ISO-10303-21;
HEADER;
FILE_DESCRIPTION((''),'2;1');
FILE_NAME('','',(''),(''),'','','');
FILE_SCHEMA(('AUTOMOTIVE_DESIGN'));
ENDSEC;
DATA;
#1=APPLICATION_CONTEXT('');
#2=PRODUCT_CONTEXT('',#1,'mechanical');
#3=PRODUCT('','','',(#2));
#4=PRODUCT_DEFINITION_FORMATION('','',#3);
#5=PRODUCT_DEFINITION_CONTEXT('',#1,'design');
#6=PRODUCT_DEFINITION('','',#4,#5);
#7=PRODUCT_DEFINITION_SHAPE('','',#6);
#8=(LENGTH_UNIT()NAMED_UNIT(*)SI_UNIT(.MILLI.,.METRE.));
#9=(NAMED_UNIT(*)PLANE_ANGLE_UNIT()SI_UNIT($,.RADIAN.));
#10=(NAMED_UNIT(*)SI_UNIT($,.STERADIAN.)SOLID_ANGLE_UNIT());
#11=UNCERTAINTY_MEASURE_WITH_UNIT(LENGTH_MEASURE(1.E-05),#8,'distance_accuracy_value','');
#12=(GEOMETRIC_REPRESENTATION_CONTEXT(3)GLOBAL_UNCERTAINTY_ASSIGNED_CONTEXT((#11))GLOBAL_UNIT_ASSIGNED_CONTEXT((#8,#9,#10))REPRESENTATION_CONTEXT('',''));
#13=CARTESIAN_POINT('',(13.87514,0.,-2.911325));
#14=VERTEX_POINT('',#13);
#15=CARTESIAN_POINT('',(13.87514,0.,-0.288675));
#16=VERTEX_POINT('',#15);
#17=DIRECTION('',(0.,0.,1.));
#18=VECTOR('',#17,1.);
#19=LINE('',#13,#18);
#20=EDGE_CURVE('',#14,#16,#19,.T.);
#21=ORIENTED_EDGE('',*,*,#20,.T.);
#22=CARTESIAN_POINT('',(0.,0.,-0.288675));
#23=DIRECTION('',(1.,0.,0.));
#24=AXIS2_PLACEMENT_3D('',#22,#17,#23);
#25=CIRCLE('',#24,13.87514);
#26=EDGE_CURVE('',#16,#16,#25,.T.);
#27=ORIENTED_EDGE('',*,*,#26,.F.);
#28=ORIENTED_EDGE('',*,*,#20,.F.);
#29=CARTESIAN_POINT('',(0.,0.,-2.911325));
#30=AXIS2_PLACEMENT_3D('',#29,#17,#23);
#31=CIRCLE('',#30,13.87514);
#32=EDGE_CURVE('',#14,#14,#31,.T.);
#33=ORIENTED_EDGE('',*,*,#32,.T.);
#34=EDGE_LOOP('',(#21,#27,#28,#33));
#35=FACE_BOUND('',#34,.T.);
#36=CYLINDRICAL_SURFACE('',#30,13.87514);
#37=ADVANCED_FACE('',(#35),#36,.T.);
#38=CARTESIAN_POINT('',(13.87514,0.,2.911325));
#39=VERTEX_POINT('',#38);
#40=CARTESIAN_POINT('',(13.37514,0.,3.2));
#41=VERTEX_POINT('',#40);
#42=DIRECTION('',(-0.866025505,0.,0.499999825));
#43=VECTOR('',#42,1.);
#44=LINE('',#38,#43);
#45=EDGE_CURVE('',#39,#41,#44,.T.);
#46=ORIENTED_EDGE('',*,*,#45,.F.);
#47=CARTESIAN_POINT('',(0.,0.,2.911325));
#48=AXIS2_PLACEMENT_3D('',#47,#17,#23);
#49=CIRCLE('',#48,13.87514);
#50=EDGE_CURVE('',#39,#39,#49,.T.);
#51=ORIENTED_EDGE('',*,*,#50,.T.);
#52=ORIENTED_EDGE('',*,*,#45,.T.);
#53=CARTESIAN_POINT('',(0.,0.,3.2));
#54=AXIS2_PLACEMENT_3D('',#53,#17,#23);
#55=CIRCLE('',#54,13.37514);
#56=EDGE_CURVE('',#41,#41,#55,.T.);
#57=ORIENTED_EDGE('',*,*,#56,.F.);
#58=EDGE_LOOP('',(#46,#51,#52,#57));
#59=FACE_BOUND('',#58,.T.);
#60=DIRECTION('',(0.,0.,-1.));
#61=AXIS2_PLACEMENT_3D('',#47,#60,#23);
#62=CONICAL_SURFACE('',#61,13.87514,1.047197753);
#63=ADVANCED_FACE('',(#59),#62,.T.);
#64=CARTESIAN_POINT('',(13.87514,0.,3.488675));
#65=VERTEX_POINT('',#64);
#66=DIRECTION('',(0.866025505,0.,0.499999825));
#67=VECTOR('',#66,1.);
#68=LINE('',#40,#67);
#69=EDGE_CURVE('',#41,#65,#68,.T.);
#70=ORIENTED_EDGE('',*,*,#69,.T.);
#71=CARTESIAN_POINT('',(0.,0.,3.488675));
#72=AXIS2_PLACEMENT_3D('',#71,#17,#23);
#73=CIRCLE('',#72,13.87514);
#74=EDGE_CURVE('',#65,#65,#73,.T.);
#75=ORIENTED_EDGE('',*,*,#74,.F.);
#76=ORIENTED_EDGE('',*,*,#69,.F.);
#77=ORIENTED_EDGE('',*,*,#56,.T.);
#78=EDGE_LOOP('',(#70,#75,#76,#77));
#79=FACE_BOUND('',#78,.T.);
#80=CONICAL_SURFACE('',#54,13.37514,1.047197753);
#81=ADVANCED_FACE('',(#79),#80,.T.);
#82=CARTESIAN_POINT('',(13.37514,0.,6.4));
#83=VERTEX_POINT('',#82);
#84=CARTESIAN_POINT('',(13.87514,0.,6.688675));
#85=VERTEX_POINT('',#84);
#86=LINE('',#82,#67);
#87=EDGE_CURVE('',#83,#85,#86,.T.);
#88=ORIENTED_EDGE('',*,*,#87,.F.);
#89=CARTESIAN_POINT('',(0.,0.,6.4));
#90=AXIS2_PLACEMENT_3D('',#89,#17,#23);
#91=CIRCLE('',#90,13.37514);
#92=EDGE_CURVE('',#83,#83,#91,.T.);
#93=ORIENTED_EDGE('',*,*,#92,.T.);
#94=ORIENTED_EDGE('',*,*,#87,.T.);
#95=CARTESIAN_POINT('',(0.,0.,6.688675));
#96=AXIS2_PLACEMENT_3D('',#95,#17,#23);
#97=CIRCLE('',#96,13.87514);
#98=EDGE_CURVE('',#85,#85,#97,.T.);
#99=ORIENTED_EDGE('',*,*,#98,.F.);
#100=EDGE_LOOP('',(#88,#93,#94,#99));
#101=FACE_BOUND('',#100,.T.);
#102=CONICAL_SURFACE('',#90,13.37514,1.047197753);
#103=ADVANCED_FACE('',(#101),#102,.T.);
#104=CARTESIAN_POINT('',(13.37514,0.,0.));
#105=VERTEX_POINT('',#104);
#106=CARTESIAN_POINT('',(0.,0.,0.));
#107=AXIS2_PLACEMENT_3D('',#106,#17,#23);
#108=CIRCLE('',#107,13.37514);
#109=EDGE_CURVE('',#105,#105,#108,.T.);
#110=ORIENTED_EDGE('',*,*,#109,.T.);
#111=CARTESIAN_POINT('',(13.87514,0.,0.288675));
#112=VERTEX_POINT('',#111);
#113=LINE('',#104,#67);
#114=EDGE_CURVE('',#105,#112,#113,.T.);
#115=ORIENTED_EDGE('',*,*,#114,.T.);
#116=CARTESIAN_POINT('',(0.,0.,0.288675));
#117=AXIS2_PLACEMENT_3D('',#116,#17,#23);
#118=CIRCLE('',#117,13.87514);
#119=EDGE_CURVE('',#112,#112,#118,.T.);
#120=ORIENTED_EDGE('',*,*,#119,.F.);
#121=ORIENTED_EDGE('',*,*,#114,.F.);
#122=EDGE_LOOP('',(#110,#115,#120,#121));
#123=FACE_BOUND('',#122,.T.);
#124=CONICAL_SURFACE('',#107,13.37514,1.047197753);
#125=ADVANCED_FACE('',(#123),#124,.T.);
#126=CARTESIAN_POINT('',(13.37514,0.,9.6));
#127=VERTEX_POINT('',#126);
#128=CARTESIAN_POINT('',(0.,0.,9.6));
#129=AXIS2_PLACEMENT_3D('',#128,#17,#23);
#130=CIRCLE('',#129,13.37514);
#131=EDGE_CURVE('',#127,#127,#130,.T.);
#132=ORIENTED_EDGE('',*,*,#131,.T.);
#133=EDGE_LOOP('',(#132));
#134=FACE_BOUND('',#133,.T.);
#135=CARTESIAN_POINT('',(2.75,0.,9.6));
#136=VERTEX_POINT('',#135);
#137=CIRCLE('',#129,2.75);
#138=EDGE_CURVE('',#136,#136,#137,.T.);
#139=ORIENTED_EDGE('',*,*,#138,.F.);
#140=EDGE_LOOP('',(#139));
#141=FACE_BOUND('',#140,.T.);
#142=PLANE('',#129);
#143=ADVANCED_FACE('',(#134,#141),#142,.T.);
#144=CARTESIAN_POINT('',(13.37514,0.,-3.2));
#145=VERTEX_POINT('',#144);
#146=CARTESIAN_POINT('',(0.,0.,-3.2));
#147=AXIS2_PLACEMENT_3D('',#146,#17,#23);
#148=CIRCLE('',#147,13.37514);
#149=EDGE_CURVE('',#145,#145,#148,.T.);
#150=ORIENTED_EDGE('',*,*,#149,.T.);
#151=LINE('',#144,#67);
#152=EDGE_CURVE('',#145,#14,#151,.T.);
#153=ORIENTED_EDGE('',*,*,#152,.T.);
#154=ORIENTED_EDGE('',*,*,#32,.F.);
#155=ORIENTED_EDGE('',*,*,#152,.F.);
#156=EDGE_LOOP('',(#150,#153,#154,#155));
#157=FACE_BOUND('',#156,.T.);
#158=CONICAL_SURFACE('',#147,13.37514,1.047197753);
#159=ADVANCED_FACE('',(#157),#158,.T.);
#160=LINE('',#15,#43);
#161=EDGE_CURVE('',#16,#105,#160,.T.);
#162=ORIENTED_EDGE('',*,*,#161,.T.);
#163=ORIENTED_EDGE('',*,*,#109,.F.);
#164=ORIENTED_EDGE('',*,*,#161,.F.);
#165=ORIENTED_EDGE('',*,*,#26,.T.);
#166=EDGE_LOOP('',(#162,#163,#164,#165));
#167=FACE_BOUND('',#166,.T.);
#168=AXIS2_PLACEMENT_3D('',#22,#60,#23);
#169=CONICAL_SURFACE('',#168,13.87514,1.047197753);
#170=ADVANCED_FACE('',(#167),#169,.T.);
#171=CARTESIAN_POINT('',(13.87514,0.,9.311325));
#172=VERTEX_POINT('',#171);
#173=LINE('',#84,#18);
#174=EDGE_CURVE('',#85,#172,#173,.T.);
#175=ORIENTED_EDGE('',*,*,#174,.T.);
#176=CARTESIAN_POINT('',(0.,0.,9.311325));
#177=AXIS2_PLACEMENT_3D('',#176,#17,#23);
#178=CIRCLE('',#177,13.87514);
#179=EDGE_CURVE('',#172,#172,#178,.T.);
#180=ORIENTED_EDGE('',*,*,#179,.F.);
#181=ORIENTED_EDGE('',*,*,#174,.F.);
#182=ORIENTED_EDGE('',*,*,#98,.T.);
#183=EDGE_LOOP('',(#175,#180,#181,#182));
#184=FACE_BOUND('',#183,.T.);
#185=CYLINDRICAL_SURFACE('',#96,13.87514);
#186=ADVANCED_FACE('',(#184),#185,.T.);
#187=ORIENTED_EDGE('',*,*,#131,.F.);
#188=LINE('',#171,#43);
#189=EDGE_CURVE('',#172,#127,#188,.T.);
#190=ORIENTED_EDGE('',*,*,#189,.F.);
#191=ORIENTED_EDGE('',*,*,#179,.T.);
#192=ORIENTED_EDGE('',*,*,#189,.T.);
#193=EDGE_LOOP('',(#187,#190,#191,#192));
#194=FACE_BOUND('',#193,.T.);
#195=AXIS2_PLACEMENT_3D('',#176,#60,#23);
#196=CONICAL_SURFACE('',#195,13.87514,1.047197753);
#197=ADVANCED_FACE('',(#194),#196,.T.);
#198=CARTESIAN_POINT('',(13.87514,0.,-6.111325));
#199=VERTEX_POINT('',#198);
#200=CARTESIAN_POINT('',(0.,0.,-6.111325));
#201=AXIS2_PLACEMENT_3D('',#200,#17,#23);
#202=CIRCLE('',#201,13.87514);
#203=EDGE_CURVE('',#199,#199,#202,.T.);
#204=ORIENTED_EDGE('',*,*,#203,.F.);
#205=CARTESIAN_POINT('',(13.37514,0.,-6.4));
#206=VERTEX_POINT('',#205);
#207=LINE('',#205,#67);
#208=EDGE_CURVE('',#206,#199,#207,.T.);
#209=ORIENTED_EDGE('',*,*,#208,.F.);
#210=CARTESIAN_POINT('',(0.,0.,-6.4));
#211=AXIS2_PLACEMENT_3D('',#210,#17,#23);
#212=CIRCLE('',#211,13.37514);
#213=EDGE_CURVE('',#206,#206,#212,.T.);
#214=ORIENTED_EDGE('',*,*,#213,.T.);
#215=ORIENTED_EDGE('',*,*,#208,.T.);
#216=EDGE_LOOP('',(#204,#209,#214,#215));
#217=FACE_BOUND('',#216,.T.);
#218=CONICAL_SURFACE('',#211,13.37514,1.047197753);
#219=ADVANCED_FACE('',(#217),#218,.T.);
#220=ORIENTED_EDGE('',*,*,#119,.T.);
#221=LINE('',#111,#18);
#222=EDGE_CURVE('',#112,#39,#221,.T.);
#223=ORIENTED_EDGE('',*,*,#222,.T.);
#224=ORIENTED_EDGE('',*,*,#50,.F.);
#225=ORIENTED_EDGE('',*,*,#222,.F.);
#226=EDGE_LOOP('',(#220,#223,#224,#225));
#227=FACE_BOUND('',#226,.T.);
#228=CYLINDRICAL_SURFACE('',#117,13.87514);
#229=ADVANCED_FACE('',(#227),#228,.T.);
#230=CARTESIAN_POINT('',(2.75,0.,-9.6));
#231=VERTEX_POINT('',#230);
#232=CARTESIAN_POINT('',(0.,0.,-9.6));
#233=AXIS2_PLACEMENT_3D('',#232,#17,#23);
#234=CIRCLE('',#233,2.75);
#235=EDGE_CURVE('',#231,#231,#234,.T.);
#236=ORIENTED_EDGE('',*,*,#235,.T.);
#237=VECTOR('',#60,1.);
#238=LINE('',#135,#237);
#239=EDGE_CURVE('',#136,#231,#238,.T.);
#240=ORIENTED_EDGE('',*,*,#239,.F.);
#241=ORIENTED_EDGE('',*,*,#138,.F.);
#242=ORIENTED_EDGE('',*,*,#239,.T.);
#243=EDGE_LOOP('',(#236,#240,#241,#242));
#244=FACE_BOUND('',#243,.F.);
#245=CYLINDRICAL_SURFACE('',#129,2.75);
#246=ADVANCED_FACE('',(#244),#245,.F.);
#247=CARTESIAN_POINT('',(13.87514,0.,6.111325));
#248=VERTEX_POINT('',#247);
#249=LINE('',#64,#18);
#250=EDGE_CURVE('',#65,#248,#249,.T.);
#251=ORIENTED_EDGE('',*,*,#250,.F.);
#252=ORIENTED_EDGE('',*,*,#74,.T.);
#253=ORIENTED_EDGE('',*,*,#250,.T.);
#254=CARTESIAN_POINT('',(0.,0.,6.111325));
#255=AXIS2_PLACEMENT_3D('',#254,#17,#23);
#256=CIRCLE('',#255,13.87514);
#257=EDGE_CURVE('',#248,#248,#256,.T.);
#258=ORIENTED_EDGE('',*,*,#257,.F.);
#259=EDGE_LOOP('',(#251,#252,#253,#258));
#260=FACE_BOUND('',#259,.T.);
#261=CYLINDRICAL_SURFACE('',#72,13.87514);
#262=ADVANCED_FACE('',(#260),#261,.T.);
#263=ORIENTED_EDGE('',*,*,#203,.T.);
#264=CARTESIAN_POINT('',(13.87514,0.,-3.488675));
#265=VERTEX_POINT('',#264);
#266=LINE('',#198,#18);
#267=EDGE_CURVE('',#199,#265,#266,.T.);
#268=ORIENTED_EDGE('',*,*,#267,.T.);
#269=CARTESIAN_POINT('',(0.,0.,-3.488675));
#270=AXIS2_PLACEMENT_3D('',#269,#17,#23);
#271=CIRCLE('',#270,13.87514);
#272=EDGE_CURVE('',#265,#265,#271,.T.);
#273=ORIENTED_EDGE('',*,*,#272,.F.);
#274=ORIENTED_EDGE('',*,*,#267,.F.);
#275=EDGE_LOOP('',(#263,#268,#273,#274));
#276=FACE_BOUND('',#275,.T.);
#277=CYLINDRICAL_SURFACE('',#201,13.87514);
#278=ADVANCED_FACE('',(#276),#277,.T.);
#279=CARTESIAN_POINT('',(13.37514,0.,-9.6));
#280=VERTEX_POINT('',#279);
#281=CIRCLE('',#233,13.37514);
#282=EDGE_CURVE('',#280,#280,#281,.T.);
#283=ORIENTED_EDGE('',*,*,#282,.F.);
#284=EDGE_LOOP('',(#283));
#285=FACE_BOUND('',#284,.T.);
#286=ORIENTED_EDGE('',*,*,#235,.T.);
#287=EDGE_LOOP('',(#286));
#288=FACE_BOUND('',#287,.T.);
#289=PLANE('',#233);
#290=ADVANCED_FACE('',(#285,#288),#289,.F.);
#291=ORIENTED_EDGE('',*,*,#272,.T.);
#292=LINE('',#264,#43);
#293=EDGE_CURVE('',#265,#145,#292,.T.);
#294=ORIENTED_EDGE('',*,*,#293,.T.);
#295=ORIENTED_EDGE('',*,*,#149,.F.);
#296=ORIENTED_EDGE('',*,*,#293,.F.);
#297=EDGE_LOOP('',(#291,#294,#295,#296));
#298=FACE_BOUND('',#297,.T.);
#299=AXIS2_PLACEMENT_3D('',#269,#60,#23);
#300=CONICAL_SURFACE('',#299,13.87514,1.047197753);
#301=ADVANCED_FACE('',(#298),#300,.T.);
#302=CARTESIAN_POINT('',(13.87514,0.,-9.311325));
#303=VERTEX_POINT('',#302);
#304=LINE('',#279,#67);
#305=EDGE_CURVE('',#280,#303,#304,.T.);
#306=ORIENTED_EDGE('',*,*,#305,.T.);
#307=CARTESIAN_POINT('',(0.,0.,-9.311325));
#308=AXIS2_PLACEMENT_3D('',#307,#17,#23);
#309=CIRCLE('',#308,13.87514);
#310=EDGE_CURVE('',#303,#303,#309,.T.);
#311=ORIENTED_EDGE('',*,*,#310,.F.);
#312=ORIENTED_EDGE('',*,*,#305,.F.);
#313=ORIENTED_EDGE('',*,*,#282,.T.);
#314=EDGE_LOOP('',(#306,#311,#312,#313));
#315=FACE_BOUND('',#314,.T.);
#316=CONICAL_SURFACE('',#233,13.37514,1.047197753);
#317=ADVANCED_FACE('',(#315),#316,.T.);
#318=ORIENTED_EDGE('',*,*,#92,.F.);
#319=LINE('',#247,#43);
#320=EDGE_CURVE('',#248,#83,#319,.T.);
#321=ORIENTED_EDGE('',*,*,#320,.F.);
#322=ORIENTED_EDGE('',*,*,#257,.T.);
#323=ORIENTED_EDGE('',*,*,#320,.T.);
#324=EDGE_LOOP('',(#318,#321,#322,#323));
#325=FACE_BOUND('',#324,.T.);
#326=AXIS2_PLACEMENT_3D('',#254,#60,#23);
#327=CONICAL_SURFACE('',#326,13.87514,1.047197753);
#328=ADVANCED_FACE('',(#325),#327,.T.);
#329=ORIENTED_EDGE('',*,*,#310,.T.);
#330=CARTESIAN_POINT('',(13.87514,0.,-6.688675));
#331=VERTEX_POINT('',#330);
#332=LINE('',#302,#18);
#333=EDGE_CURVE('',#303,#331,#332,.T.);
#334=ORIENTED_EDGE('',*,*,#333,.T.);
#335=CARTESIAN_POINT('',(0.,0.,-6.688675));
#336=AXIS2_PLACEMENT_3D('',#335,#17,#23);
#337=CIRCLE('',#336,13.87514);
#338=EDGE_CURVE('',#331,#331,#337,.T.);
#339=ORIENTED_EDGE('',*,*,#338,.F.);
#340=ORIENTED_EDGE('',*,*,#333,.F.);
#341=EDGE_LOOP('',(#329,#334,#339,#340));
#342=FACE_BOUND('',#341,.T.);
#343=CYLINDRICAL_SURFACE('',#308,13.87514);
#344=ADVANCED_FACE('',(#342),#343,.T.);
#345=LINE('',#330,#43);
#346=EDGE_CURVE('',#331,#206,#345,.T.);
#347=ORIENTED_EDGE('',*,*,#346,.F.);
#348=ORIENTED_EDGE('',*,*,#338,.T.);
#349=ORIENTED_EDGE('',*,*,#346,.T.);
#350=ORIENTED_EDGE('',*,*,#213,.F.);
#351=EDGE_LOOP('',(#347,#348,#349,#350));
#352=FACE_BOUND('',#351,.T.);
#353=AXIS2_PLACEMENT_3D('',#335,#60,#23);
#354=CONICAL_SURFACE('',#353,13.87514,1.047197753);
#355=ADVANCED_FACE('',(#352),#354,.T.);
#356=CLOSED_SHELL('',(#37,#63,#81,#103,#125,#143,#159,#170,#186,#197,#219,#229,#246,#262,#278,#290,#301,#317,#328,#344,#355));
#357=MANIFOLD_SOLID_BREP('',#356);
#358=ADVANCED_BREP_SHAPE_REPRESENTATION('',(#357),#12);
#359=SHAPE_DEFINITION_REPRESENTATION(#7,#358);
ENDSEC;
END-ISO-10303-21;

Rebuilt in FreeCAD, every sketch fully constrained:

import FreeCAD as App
import Part
import Sketcher
Q = App.Units.Quantity


def add_polygon(sketch, points):
    """Adds a closed chain of lines whose ends are joined by coincident constraints."""
    first, n = sketch.GeometryCount, len(points)
    for a, b in zip(points, points[1:] + points[:1]):
        sketch.addGeometry(Part.LineSegment(App.Vector(*a, 0), App.Vector(*b, 0)), False)
    for i in range(n):
        sketch.addConstraint(Sketcher.Constraint("Coincident", first + i, 2, first + (i + 1) % n, 1))

doc = App.newDocument("Part")
body = doc.addObject("PartDesign::Body", "Body")

# Sketch on XZ plane
sketch1 = doc.addObject("Sketcher::SketchObject", "Sketch")
body.addObject(sketch1)
sketch1.AttachmentSupport = (doc.XZ_Plane, [""])
sketch1.MapMode = "FlatFace"
add_polygon(sketch1, [(0, 9.6), (0, -9.6), (13.37514, -9.6), (13.87514, -9.311325), (13.87514, -6.688675), (13.37514, -6.4), (13.87514, -6.111325), (13.87514, -3.488675), (13.37514, -3.2), (13.87514, -2.911325), (13.87514, -0.288675), (13.37514, 0), (13.87514, 0.288675), (13.87514, 2.911325), (13.37514, 3.2), (13.87514, 3.488675), (13.87514, 6.111325), (13.37514, 6.4), (13.87514, 6.688675), (13.87514, 9.311325), (13.37514, 9.6)])  # lines 0-20
sketch1.addConstraint([
    Sketcher.Constraint("Vertical", 0),
    Sketcher.Constraint("Horizontal", 1),
    Sketcher.Constraint("Vertical", 3),
    Sketcher.Constraint("Vertical", 6),
    Sketcher.Constraint("Vertical", 9),
    Sketcher.Constraint("Vertical", 12),
    Sketcher.Constraint("Vertical", 15),
    Sketcher.Constraint("Vertical", 18),
    Sketcher.Constraint("Horizontal", 20),
    Sketcher.Constraint("Symmetric", 0, 2, 20, 2, -1, 1),
    Sketcher.Constraint("Symmetric", 9, 2, 11, 2, -1),
    Sketcher.Constraint("Symmetric", 7, 2, 13, 2, -1),
    Sketcher.Constraint("Symmetric", 6, 2, 14, 2, -1),
    Sketcher.Constraint("Symmetric", 4, 2, 16, 2, -1),
    Sketcher.Constraint("Symmetric", 3, 2, 17, 2, -1),
    Sketcher.Constraint("PointOnObject", 10, 2, -1),
    Sketcher.Constraint("Parallel", 2, 5),
    Sketcher.Constraint("Parallel", 4, 7),
    Sketcher.Constraint("Parallel", 5, 8),
    Sketcher.Constraint("Parallel", 7, 10),
    Sketcher.Constraint("Parallel", 8, 11),
    Sketcher.Constraint("Parallel", 10, 13),
    Sketcher.Constraint("Parallel", 13, 16),
    Sketcher.Constraint("Parallel", 16, 19),
    Sketcher.Constraint("Vertical", 1, 2, 4, 2),
    Sketcher.Constraint("Vertical", 3, 2, 5, 2),
    Sketcher.Constraint("Vertical", 4, 2, 7, 2),
    Sketcher.Constraint("Vertical", 6, 2, 8, 2),
    Sketcher.Constraint("Vertical", 7, 2, 10, 2),
    Sketcher.Constraint("Vertical", 16, 2, 19, 2),
    Sketcher.Constraint("Equal", 3, 6),
    Sketcher.Constraint("Equal", 6, 9),
    Sketcher.Constraint("Angle", 2, Q("29.999988 deg")),
    Sketcher.Constraint("DistanceY", 0, 2, 0, 1, 19.2),
    Sketcher.Constraint("DistanceX", 1, 2, 2, 2, 0.5),
    Sketcher.Constraint("DistanceX", 1, 1, 1, 2, 13.37514),
])
revolution = doc.addObject("PartDesign::Revolution", "Revolution")
body.addObject(revolution)
revolution.Profile = sketch1
revolution.ReferenceAxis = (sketch1, ["V_Axis"])
revolution.Angle = 360

# Sketch on XY plane
sketch2 = doc.addObject("Sketcher::SketchObject", "Sketch001")
body.addObject(sketch2)
sketch2.AttachmentSupport = (doc.XY_Plane, [""])
sketch2.MapMode = "FlatFace"
sketch2.AttachmentOffset = App.Placement(App.Vector(0, 0, 9.6), App.Rotation())
sketch2.addGeometry(Part.Circle(App.Vector(0, 0, 0), App.Vector(0, 0, 1), 2.75), False)
sketch2.addConstraint([
    Sketcher.Constraint("Coincident", 0, 3, -1, 1),
    Sketcher.Constraint("Diameter", 0, 5.5),
])
pocket1 = doc.addObject("PartDesign::Pocket", "Pocket")
body.addObject(pocket1)
pocket1.Profile = sketch2
pocket1.Type = "ThroughAll"

doc.recompute()
